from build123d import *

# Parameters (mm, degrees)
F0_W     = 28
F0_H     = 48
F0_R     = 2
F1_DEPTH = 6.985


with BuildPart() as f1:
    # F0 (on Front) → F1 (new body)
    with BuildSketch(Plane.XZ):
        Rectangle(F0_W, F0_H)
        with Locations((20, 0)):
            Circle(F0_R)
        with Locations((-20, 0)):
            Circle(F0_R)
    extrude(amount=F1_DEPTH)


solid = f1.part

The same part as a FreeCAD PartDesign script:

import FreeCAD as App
import Part
import Sketcher

V = App.Vector
Q = App.Units.Quantity

doc = App.newDocument("Part")
body = doc.addObject("PartDesign::Body", "Body")
body.AllowCompound = True

sketch1 = doc.addObject("Sketcher::SketchObject", "Sketch")
body.addObject(sketch1)
sketch1.AttachmentSupport = (doc.XZ_Plane, [""])
sketch1.MapMode = "FlatFace"
sketch1.addGeometry([
    Part.LineSegment(V(-14, 24, 0), V(-14, -24, 0)),
    Part.LineSegment(V(-14, -24, 0), V(14, -24, 0)),
    Part.LineSegment(V(14, -24, 0), V(14, 24, 0)),
    Part.LineSegment(V(14, 24, 0), V(-14, 24, 0)),
    Part.Circle(V(20, 0, 0), V(0, 0, 1), 2),
    Part.Circle(V(-20, 0, 0), V(0, 0, 1), 2),
], False)
sketch1.addConstraint([
    Sketcher.Constraint("Coincident", 0, 2, 1, 1),
    Sketcher.Constraint("Coincident", 1, 2, 2, 1),
    Sketcher.Constraint("Coincident", 2, 2, 3, 1),
    Sketcher.Constraint("Coincident", 3, 2, 0, 1),
    Sketcher.Constraint("Vertical", 0),
    Sketcher.Constraint("Horizontal", 1),
    Sketcher.Constraint("Vertical", 2),
    Sketcher.Constraint("Horizontal", 3),
    Sketcher.Constraint("Equal", 4, 5),
    Sketcher.Constraint("Symmetric", 4, 3, 5, 3, -1, 1),
    Sketcher.Constraint("Symmetric", 0, 2, 2, 2, -1, 1),
    Sketcher.Constraint("PointOnObject", 4, 3, -1),
    Sketcher.Constraint("Diameter", 4, Q("4 mm")),
    Sketcher.Constraint("DistanceX", 1, 1, 1, 2, Q("28 mm")),
    Sketcher.Constraint("DistanceY", 0, 2, 0, 1, Q("48 mm")),
    Sketcher.Constraint("DistanceX", -1, 1, 4, 3, Q("20 mm")),
])
pad1 = doc.addObject("PartDesign::Pad", "Pad")
body.addObject(pad1)
pad1.Profile = sketch1
pad1.Length = 6.985

doc.recompute()
